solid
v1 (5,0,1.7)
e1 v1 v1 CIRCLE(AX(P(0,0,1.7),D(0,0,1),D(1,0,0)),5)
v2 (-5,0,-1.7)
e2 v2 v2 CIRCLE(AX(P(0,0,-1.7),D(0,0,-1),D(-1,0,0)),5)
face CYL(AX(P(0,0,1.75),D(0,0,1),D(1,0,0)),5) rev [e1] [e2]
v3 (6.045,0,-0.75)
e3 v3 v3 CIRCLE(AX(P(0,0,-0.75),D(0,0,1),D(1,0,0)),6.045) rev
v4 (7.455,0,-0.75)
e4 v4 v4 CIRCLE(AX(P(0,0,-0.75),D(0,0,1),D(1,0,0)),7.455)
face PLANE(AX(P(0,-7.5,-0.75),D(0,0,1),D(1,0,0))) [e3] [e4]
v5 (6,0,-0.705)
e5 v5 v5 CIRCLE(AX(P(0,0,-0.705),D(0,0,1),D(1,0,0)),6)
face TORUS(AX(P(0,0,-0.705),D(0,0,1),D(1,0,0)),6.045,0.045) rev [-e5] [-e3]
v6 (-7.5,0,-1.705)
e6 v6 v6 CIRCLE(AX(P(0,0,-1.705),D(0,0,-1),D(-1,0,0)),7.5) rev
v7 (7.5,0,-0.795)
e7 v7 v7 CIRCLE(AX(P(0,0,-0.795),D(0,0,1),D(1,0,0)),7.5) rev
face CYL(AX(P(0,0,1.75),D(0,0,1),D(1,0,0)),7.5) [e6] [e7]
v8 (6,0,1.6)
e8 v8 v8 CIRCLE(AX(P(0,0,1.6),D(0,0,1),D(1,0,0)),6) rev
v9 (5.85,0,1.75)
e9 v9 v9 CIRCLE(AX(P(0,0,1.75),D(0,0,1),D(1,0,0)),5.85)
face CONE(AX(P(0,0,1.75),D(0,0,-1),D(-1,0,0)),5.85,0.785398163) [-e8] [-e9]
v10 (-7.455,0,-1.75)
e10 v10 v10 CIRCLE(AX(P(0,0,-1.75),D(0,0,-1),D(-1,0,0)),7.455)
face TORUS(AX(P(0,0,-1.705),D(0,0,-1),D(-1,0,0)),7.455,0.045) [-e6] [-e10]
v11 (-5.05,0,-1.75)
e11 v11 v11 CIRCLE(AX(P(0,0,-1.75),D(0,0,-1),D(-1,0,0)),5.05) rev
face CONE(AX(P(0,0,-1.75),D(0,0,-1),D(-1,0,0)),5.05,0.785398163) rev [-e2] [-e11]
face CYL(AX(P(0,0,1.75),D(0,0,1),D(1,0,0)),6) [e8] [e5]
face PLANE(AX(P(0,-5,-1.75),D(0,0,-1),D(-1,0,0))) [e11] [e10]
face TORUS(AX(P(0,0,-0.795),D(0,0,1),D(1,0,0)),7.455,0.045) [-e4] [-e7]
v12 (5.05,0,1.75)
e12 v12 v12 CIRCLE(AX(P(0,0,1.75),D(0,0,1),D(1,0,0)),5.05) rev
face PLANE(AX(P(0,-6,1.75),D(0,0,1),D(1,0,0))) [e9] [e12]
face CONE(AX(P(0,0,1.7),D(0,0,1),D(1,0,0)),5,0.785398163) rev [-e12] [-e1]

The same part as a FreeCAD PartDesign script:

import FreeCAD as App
import Part
import Sketcher
Q = App.Units.Quantity


def edges_at(feature, points):
    """Names of the edges that pass closest to the given points."""
    edges = feature.Shape.Edges
    near = lambda p: min(range(len(edges)), key=lambda i: edges[i].distToShape(Part.Vertex(*p))[0])
    return sorted({f"Edge{near(p) + 1}" for p in points})

doc = App.newDocument("Part")
params = doc.addObject("Spreadsheet::Sheet", "Params")
for row, (alias, value) in enumerate([
    ("sketch1_width", "1 mm"),
    ("sketch1_width2", "2.5 mm"),
    ("revolution_angle", "360 deg"),
    ("chamfer_size", "0.15 mm"),
    ("chamfer2_size", "0.05 mm"),
    ("fillet_radius", "0.045 mm"),
], start=1):
    params.set(f"A{row}", alias)
    params.set(f"B{row}", "=" + value)
    params.setAlias(f"B{row}", alias)

body = doc.addObject("PartDesign::Body", "Body")

# Sketch on YZ plane
sketch1 = body.newObject("Sketcher::SketchObject", "Sketch")
sketch1.AttachmentSupport = (doc.getObject("YZ_Plane"), [""])
sketch1.MapMode = "FlatFace"
sketch1.addGeometry(Part.LineSegment(App.Vector(-7.5, -0.8, 0), App.Vector(-7.5, -1.8, 0)), False)
sketch1.addGeometry(Part.LineSegment(App.Vector(-7.5, -1.8, 0), App.Vector(-5, -1.8, 0)), False)
sketch1.addGeometry(Part.LineSegment(App.Vector(-5, -1.8, 0), App.Vector(-5, 1.8, 0)), False)
sketch1.addGeometry(Part.LineSegment(App.Vector(-5, 1.8, 0), App.Vector(-6, 1.8, 0)), False)
sketch1.addGeometry(Part.LineSegment(App.Vector(-6, 1.8, 0), App.Vector(-6, -0.8, 0)), False)
sketch1.addGeometry(Part.LineSegment(App.Vector(-6, -0.8, 0), App.Vector(-7.5, -0.8, 0)), False)
sketch1.addConstraint(Sketcher.Constraint("Coincident", 0, 2, 1, 1))
sketch1.addConstraint(Sketcher.Constraint("Coincident", 1, 2, 2, 1))
sketch1.addConstraint(Sketcher.Constraint("Coincident", 2, 2, 3, 1))
sketch1.addConstraint(Sketcher.Constraint("Coincident", 3, 2, 4, 1))
sketch1.addConstraint(Sketcher.Constraint("Coincident", 4, 2, 5, 1))
sketch1.addConstraint(Sketcher.Constraint("Coincident", 5, 2, 0, 1))
sketch1.addConstraint(Sketcher.Constraint("Vertical", 0))
sketch1.addConstraint(Sketcher.Constraint("Horizontal", 1))
sketch1.addConstraint(Sketcher.Constraint("Vertical", 2))
sketch1.addConstraint(Sketcher.Constraint("Horizontal", 3))
sketch1.addConstraint(Sketcher.Constraint("Vertical", 4))
sketch1.addConstraint(Sketcher.Constraint("Horizontal", 5))
sketch1.addConstraint(Sketcher.Constraint("Equal", 3, 0))
sketch1.addConstraint(Sketcher.Constraint("Equal", 1, 4))
sketch1.addConstraint(Sketcher.Constraint("DistanceX", 3, 2, 3, 1, Q("1 mm")))
sketch1.addConstraint(Sketcher.Constraint("DistanceX", 1, 1, 1, 2, Q("2.5 mm")))
sketch1.addConstraint(Sketcher.Constraint("DistanceX", 1, 2, -1, 1, Q("5 mm")))
sketch1.addConstraint(Sketcher.Constraint("DistanceY", 0, 2, -1, 1, Q("1.75 mm")))
sketch1.setExpression("Constraints[14]", "Params.sketch1_width")
sketch1.setExpression("Constraints[15]", "Params.sketch1_width2")
revolution = body.newObject("PartDesign::Revolution", "Revolution")
revolution.Profile = sketch1
revolution.ReferenceAxis = (sketch1, ["V_Axis"])
revolution.setExpression("Angle", "Params.revolution_angle")
doc.recompute()

chamfer = body.newObject("PartDesign::Chamfer", "Chamfer")
chamfer.Base = (revolution, edges_at(revolution, [(0, 6, 1.75)]))
chamfer.setExpression("Size", "Params.chamfer_size")
doc.recompute()

chamfer2 = body.newObject("PartDesign::Chamfer", "Chamfer001")
chamfer2.Base = (chamfer, edges_at(chamfer, [(0, 5, -1.75), (0, 5, 1.75)]))
chamfer2.setExpression("Size", "Params.chamfer2_size")
doc.recompute()

fillet = body.newObject("PartDesign::Fillet", "Fillet")
fillet.Base = (chamfer2, edges_at(chamfer2, [(0, 6, -0.75), (0, 7.5, -0.75), (0, 7.5, -1.75)]))
fillet.setExpression("Radius", "Params.fillet_radius")

doc.recompute()
